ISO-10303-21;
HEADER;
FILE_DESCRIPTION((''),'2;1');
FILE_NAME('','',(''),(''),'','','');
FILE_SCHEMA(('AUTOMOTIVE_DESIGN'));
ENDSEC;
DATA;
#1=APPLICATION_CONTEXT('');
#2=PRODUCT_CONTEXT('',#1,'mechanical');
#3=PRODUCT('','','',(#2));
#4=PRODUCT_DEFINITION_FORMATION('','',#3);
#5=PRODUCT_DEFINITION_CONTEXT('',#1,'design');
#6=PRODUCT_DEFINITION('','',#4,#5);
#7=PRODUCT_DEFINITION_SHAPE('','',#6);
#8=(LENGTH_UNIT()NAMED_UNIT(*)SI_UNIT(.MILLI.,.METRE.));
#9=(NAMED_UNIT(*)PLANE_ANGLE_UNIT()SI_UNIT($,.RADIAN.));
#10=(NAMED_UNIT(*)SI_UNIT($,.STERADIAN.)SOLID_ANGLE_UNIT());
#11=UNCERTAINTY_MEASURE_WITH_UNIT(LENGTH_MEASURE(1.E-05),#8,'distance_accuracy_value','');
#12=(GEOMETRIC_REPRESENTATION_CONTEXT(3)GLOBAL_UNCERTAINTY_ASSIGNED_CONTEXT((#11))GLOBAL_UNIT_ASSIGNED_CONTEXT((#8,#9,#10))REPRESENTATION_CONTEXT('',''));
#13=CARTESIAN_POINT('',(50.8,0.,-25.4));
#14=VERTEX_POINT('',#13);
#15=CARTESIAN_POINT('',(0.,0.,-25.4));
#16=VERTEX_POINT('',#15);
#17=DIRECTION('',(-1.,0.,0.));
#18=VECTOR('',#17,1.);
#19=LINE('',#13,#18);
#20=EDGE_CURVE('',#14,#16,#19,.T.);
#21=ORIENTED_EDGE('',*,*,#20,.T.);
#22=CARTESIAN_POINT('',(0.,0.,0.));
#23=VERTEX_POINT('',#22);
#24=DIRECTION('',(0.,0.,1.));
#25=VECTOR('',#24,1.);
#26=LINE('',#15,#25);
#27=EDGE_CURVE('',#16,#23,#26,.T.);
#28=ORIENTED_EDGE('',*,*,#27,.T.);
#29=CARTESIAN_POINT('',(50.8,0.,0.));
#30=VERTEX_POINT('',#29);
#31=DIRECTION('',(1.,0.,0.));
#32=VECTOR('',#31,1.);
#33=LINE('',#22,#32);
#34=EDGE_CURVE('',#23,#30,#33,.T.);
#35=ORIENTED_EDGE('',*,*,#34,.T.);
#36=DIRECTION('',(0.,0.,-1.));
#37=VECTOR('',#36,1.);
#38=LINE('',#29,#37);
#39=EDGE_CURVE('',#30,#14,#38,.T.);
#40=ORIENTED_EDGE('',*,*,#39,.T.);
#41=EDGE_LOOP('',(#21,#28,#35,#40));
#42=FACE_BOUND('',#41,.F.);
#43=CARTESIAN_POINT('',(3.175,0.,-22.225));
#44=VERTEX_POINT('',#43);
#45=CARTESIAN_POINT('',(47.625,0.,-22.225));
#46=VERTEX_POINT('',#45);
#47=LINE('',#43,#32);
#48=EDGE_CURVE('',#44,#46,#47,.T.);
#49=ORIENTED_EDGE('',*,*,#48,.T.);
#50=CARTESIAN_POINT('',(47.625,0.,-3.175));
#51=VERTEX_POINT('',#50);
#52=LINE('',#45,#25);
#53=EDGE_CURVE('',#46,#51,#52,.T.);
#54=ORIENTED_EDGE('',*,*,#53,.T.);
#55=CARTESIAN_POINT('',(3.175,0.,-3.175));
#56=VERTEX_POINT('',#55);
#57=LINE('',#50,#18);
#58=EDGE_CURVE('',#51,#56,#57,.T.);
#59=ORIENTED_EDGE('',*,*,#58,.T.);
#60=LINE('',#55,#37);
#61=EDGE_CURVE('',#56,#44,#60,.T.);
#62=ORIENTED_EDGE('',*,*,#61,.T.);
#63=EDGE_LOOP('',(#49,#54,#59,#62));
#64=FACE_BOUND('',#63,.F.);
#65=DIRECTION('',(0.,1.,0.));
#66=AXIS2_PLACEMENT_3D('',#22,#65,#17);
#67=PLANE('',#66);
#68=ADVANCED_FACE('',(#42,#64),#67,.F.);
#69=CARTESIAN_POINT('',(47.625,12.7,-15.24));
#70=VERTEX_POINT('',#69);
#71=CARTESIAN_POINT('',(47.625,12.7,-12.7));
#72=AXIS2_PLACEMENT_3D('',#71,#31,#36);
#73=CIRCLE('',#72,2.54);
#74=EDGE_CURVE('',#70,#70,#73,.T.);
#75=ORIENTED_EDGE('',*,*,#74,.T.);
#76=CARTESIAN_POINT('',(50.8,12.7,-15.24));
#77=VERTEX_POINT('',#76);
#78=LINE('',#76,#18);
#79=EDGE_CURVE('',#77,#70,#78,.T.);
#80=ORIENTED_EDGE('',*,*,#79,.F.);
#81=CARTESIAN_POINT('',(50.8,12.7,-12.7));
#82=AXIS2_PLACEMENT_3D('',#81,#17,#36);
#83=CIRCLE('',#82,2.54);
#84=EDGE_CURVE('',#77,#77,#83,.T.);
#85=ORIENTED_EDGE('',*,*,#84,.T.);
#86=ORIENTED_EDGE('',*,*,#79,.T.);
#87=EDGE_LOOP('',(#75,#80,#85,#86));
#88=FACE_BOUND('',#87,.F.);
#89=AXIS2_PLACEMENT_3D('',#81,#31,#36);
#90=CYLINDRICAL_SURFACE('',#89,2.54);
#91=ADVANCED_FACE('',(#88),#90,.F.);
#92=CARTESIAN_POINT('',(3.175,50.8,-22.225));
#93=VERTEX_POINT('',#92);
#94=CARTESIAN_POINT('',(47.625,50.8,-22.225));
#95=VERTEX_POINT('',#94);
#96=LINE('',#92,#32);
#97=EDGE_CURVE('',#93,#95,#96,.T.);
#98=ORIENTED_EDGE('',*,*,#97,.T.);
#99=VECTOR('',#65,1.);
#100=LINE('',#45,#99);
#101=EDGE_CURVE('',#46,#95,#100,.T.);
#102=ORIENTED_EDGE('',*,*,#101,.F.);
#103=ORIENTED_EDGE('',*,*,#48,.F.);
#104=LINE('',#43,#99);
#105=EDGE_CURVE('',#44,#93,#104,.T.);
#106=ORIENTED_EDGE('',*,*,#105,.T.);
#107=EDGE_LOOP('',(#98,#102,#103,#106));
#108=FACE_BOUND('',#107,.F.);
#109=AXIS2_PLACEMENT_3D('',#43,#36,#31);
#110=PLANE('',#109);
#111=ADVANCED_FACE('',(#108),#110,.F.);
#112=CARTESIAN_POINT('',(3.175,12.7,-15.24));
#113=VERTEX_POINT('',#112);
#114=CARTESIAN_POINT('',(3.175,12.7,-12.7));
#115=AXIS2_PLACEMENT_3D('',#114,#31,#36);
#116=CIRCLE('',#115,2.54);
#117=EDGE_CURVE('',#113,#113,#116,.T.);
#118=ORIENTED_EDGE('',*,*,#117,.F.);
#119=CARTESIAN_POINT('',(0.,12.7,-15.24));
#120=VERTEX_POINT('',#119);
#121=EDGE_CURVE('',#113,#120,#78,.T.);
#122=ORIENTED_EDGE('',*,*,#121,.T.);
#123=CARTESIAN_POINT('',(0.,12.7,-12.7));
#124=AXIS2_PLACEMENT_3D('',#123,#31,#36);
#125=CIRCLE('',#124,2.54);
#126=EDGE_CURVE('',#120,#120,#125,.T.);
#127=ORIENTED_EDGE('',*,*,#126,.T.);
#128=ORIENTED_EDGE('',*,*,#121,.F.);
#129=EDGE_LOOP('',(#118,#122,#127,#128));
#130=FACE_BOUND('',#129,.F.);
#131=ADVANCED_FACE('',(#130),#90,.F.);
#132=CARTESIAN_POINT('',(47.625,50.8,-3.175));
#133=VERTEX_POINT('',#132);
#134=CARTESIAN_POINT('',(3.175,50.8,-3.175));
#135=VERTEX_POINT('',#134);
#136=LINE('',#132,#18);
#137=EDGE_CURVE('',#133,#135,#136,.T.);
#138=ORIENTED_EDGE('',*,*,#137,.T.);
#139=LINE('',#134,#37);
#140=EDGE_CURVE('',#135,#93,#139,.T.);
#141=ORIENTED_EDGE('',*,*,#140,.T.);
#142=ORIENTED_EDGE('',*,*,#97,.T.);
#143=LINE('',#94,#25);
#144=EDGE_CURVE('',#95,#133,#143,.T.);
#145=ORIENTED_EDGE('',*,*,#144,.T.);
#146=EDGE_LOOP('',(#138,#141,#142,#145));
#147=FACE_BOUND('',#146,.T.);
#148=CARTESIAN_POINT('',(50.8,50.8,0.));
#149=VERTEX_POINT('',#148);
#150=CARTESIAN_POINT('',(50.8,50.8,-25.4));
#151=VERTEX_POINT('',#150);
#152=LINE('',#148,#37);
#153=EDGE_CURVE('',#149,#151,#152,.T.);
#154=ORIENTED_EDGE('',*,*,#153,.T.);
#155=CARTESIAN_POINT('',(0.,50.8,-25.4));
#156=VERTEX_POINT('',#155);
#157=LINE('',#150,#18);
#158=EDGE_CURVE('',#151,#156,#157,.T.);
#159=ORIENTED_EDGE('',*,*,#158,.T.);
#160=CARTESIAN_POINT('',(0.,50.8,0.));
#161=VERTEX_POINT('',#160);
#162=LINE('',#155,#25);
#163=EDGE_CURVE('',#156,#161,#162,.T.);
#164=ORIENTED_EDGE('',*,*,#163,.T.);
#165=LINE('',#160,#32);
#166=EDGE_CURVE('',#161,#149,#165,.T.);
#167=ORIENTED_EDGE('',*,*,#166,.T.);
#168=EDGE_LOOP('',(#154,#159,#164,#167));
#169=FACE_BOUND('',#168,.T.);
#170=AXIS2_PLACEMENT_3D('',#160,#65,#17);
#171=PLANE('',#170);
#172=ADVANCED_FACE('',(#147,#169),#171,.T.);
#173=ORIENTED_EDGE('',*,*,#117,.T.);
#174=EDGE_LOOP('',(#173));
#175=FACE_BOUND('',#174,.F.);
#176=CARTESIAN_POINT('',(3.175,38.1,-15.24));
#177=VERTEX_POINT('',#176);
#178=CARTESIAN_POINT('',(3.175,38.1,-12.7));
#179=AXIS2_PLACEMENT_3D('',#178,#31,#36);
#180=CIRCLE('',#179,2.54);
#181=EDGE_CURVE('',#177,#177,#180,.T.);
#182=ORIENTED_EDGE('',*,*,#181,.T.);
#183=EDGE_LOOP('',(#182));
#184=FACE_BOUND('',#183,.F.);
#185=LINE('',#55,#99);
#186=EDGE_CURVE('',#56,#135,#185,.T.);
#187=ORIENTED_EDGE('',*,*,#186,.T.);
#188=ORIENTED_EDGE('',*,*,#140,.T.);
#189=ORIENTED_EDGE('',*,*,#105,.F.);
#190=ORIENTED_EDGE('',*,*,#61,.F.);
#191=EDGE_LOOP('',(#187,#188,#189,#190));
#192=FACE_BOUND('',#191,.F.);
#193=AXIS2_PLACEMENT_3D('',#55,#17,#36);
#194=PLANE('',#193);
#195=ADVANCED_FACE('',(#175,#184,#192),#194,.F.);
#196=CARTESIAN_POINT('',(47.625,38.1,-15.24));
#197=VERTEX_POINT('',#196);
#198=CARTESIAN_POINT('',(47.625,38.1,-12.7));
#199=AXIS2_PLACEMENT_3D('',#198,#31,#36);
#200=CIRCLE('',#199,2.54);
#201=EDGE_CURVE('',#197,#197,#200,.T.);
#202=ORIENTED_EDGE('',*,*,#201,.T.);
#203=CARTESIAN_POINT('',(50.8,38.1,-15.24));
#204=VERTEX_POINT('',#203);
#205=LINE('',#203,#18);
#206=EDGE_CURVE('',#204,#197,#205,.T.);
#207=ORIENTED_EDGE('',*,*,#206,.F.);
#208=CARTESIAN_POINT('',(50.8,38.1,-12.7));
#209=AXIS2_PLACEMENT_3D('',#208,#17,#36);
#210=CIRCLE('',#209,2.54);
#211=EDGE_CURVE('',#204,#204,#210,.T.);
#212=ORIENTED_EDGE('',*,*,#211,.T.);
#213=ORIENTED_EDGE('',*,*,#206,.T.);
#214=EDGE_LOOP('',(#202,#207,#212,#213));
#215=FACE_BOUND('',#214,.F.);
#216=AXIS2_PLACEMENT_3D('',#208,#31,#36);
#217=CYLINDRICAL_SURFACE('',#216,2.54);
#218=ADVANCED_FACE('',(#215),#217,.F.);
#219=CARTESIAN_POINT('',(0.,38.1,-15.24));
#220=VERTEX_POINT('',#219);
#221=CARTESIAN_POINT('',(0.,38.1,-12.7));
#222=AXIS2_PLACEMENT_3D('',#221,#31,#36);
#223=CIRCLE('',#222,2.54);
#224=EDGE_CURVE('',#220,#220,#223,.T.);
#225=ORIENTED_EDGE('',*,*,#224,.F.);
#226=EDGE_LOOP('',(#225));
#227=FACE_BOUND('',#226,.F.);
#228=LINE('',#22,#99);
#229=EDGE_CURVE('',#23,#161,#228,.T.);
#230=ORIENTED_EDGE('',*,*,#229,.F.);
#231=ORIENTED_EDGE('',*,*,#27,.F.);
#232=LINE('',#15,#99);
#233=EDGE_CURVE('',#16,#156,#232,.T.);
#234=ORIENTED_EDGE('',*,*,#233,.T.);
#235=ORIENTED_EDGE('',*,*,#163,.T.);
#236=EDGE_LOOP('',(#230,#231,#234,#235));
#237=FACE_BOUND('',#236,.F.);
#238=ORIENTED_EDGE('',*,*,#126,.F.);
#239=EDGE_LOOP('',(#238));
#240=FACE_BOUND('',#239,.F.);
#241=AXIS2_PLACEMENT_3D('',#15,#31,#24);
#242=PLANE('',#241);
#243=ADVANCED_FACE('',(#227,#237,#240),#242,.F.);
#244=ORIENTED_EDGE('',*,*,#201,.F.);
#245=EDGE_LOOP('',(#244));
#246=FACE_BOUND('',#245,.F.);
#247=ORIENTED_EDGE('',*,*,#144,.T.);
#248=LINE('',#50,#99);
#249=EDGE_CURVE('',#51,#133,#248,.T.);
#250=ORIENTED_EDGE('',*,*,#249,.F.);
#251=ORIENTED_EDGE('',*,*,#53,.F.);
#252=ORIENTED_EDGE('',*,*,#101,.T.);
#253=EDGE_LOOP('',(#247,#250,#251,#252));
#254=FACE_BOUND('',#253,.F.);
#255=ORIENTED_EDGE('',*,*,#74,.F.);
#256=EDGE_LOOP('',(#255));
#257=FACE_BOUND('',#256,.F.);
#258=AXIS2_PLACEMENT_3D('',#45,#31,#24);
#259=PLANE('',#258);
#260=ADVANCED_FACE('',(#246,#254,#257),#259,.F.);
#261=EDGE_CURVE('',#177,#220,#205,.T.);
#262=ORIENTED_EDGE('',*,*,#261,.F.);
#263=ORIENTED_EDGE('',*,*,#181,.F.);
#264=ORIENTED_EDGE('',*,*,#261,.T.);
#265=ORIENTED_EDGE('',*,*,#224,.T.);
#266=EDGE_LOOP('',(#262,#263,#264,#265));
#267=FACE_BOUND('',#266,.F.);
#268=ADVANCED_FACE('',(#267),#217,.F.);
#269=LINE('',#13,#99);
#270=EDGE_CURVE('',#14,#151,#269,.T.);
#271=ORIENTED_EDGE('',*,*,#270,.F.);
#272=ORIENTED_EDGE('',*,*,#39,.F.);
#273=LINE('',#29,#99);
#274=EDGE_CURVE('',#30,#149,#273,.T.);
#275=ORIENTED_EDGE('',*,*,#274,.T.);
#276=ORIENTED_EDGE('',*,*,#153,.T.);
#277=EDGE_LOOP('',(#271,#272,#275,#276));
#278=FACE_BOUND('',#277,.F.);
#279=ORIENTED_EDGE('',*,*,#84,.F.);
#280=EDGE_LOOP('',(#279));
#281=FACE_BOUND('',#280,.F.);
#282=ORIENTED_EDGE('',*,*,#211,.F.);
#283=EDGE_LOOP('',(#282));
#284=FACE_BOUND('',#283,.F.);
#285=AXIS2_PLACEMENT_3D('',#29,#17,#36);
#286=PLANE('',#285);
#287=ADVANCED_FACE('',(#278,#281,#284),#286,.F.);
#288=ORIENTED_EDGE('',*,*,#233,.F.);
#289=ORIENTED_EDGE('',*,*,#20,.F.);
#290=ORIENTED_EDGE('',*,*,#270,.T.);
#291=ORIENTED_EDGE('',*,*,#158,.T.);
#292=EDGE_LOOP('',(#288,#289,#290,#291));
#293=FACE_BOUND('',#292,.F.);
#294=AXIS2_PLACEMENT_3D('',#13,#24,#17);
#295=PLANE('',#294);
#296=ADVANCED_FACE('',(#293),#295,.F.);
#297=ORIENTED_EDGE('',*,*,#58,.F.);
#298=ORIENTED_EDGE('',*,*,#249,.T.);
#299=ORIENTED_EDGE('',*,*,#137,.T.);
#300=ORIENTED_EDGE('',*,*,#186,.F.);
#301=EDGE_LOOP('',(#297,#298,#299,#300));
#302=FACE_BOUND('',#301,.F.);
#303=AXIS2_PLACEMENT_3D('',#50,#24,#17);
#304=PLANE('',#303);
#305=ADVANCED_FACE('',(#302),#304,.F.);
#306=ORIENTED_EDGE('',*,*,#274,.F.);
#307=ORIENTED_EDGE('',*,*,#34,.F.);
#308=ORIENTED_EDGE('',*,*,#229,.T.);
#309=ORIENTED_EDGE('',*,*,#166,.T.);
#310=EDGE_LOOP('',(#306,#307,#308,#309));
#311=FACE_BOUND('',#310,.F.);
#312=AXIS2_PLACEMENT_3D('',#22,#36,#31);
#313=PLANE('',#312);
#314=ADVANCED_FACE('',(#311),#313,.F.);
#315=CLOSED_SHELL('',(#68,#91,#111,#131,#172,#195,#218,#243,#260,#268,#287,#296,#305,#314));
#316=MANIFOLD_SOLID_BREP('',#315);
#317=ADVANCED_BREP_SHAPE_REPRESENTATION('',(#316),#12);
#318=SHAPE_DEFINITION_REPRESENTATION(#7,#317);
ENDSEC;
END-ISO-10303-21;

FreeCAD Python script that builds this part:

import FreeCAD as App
import Part
import Sketcher
Q = App.Units.Quantity

doc = App.newDocument("Part")
body = doc.addObject("PartDesign::Body", "Body")

sketch1 = body.newObject("Sketcher::SketchObject", "Sketch")
sketch1.AttachmentSupport = (doc.getObject("XZ_Plane"), [""])
sketch1.MapMode = "FlatFace"
sketch1.addGeometry([
    Part.LineSegment(App.Vector(0, -25, 0), App.Vector(0, 0, 0)),
    Part.LineSegment(App.Vector(0, 0, 0), App.Vector(51, 0, 0)),
    Part.LineSegment(App.Vector(51, 0, 0), App.Vector(51, -25, 0)),
    Part.LineSegment(App.Vector(51, -25, 0), App.Vector(0, -25, 0)),
    Part.LineSegment(App.Vector(3, -3, 0), App.Vector(3, -22, 0)),
    Part.LineSegment(App.Vector(3, -22, 0), App.Vector(48, -22, 0)),
    Part.LineSegment(App.Vector(48, -22, 0), App.Vector(48, -3, 0)),
    Part.LineSegment(App.Vector(48, -3, 0), App.Vector(3, -3, 0)),
], False)
sketch1.addConstraint([
    Sketcher.Constraint("Coincident", 0, 2, 1, 1),
    Sketcher.Constraint("Coincident", 1, 2, 2, 1),
    Sketcher.Constraint("Coincident", 2, 2, 3, 1),
    Sketcher.Constraint("Coincident", 3, 2, 0, 1),
    Sketcher.Constraint("Coincident", 4, 2, 5, 1),
    Sketcher.Constraint("Coincident", 5, 2, 6, 1),
    Sketcher.Constraint("Coincident", 6, 2, 7, 1),
    Sketcher.Constraint("Coincident", 7, 2, 4, 1),
    Sketcher.Constraint("Vertical", 0),
    Sketcher.Constraint("Horizontal", 1),
    Sketcher.Constraint("Vertical", 2),
    Sketcher.Constraint("Horizontal", 3),
    Sketcher.Constraint("Vertical", 4),
    Sketcher.Constraint("Horizontal", 5),
    Sketcher.Constraint("Vertical", 6),
    Sketcher.Constraint("Horizontal", 7),
    Sketcher.Constraint("Coincident", 0, 2, -1, 1),
    Sketcher.Constraint("DistanceX", 1, 1, 1, 2, Q("2 in")),
    Sketcher.Constraint("DistanceY", 0, 1, 0, 2, Q("1 in")),
    Sketcher.Constraint("DistanceX", -1, 1, 4, 2, Q("0.125 in")),
    Sketcher.Constraint("DistanceY", 6, 2, -1, 1, Q("0.125 in")),
    Sketcher.Constraint("DistanceY", 3, 2, 4, 2, Q("0.125 in")),
    Sketcher.Constraint("DistanceX", 5, 2, 2, 2, Q("0.125 in")),
])
pad1 = body.newObject("PartDesign::Pad", "Pad")
pad1.Profile = sketch1
pad1.Length = Q("2 in")
pad1.Reversed = True

sketch2 = body.newObject("Sketcher::SketchObject", "Sketch001")
sketch2.AttachmentSupport = (doc.getObject("YZ_Plane"), [""])
sketch2.MapMode = "FlatFace"
sketch2.AttachmentOffset = App.Placement(App.Vector(0, 0, 2 * 25.4), App.Rotation())
sketch2.addGeometry([
    Part.Circle(App.Vector(12.7, -12.7, 0), App.Vector(0, 0, 1), 2.5),
    Part.Circle(App.Vector(38.1, -12.7, 0), App.Vector(0, 0, 1), 2.5),
], False)
sketch2.addConstraint([
    Sketcher.Constraint("Equal", 0, 1),
    Sketcher.Constraint("Horizontal", 0, 3, 1, 3),
    Sketcher.Constraint("Diameter", 0, Q("0.2 in")),
    Sketcher.Constraint("DistanceX", 0, 3, 1, 3, Q("1 in")),
    Sketcher.Constraint("DistanceX", -1, 1, 0, 3, Q("0.5 in")),
    Sketcher.Constraint("DistanceY", 0, 3, -1, 1, Q("0.5 in")),
])
pocket1 = body.newObject("PartDesign::Pocket", "Pocket")
pocket1.Profile = sketch2
pocket1.Length = Q("2.4375 in")

doc.recompute()
